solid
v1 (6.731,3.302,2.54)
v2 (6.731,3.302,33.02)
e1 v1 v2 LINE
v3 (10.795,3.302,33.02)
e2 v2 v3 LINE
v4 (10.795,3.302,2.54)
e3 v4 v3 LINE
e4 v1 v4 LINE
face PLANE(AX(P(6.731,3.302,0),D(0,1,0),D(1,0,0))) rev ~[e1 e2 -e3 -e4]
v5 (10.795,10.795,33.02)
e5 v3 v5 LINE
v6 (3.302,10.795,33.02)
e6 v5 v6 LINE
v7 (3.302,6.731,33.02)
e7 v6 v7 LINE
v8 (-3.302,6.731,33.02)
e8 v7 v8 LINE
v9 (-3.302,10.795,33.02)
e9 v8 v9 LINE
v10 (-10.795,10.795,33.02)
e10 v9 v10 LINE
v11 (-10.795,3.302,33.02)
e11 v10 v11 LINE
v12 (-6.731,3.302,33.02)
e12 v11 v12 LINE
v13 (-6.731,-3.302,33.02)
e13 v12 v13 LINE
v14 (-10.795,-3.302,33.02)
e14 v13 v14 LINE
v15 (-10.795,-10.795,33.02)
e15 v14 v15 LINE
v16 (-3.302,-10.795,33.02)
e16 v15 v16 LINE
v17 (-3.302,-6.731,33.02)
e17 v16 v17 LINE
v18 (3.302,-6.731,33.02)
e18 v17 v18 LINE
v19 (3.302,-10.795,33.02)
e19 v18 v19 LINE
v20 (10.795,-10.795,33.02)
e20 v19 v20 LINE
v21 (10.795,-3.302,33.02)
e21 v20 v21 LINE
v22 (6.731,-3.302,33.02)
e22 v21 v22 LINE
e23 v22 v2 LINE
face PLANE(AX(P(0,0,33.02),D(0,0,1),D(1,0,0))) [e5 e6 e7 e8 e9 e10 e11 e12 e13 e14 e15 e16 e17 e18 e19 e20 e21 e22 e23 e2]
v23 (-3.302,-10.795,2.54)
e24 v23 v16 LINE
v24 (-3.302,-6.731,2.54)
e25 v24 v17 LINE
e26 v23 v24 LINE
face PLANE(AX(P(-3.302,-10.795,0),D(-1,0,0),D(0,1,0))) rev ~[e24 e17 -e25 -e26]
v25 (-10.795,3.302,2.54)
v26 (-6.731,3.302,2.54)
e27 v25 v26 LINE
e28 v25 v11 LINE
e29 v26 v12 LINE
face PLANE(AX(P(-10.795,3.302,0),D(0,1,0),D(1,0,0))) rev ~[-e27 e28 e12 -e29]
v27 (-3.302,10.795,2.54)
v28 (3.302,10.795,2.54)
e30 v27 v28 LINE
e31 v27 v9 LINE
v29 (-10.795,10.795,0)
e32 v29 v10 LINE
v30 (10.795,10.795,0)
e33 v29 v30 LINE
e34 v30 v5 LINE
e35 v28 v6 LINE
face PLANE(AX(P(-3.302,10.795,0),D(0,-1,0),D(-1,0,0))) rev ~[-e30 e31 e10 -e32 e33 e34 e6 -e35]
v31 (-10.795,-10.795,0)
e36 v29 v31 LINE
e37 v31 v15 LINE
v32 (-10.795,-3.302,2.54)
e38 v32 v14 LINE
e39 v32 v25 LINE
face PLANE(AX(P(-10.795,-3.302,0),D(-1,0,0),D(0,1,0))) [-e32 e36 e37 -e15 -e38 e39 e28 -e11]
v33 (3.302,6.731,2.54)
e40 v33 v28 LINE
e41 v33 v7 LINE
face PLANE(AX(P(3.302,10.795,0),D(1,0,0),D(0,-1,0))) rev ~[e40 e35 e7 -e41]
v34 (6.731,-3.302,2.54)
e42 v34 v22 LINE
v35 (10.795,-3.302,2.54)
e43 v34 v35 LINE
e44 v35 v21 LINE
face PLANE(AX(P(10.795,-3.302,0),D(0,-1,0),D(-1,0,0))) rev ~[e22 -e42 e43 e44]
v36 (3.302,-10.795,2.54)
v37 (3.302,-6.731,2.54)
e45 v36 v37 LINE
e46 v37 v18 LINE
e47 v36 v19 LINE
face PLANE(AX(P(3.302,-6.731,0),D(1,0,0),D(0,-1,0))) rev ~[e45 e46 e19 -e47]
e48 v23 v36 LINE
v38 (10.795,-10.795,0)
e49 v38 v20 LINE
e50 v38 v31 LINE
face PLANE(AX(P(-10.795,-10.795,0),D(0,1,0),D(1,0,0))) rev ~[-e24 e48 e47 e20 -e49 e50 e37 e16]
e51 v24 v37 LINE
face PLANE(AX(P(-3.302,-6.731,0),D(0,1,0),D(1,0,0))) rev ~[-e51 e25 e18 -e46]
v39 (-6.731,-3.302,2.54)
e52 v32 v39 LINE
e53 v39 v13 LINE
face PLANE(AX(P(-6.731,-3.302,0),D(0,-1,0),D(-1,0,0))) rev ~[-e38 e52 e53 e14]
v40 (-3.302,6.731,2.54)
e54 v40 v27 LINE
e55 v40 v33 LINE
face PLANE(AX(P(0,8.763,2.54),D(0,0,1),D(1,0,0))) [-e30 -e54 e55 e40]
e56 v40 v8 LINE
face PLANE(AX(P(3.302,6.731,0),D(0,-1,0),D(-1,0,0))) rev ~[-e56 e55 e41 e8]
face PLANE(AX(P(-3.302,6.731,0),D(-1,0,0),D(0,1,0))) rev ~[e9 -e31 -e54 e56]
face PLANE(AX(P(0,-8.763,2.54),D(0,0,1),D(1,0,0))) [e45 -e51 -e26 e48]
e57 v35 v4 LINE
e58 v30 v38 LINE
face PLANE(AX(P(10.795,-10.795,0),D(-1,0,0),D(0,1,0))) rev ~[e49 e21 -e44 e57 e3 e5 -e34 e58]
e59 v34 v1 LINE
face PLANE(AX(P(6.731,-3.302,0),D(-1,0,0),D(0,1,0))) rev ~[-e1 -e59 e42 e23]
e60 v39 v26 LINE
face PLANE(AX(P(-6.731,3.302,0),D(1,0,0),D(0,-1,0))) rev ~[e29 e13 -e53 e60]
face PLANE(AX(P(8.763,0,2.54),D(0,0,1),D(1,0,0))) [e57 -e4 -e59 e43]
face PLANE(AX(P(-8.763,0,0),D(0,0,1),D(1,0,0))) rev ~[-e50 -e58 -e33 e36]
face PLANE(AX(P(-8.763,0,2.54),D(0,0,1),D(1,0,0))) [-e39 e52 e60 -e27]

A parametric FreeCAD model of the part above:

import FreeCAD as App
import Part
import Sketcher
from FreeCAD import Vector
Q = App.Units.Quantity


def add_polygon(sketch, points):
    """Adds a closed chain of lines whose ends are joined by coincident constraints."""
    first, n = sketch.GeometryCount, len(points)
    for a, b in zip(points, points[1:] + points[:1]):
        sketch.addGeometry(Part.LineSegment(App.Vector(*a, 0), App.Vector(*b, 0)), False)
    for i in range(n):
        sketch.addConstraint(Sketcher.Constraint("Coincident", first + i, 2, first + (i + 1) % n, 1))

doc = App.newDocument("Part")
body = doc.addObject("PartDesign::Body", "Body")

# Sketch on XY plane
sketch1 = body.newObject("Sketcher::SketchObject", "Sketch")
sketch1.AttachmentSupport = (doc.getObject("XY_Plane"), [""])
sketch1.MapMode = "FlatFace"
add_polygon(sketch1, [(-3.3, 10.8), (-10.8, 10.8), (-10.8, 3.3), (-6.7, 3.3), (-6.7, -3.3), (-10.8, -3.3), (-10.8, -10.8), (-3.3, -10.8), (-3.3, -6.7), (3.3, -6.7), (3.3, -10.8), (10.8, -10.8), (10.8, -3.3), (6.7, -3.3), (6.7, 3.3), (10.8, 3.3), (10.8, 10.8), (3.3, 10.8), (3.3, 6.7), (-3.3, 6.7)])  # lines 0-19
sketch1.addConstraint(Sketcher.Constraint("Horizontal", 0))
sketch1.addConstraint(Sketcher.Constraint("Vertical", 1))
sketch1.addConstraint(Sketcher.Constraint("Horizontal", 2))
sketch1.addConstraint(Sketcher.Constraint("Vertical", 3))
sketch1.addConstraint(Sketcher.Constraint("Horizontal", 4))
sketch1.addConstraint(Sketcher.Constraint("Vertical", 5))
sketch1.addConstraint(Sketcher.Constraint("Horizontal", 6))
sketch1.addConstraint(Sketcher.Constraint("Vertical", 7))
sketch1.addConstraint(Sketcher.Constraint("Horizontal", 8))
sketch1.addConstraint(Sketcher.Constraint("Vertical", 9))
sketch1.addConstraint(Sketcher.Constraint("Horizontal", 10))
sketch1.addConstraint(Sketcher.Constraint("Vertical", 11))
sketch1.addConstraint(Sketcher.Constraint("Horizontal", 12))
sketch1.addConstraint(Sketcher.Constraint("Vertical", 13))
sketch1.addConstraint(Sketcher.Constraint("Horizontal", 14))
sketch1.addConstraint(Sketcher.Constraint("Vertical", 15))
sketch1.addConstraint(Sketcher.Constraint("Horizontal", 16))
sketch1.addConstraint(Sketcher.Constraint("Vertical", 17))
sketch1.addConstraint(Sketcher.Constraint("Horizontal", 18))
sketch1.addConstraint(Sketcher.Constraint("Vertical", 19))
sketch1.addConstraint(Sketcher.Constraint("Symmetric", 0, 2, 10, 2, -1, 1))
sketch1.addConstraint(Sketcher.Constraint("Symmetric", 2, 2, 12, 2, -1, 1))
sketch1.addConstraint(Sketcher.Constraint("Symmetric", 4, 2, 14, 2, -1, 1))
sketch1.addConstraint(Sketcher.Constraint("Symmetric", 6, 2, 16, 2, -1, 1))
sketch1.addConstraint(Sketcher.Constraint("Symmetric", 8, 2, 18, 2, -1, 1))
sketch1.addConstraint(Sketcher.Constraint("Symmetric", 6, 2, 9, 2, -2))
sketch1.addConstraint(Sketcher.Constraint("Symmetric", 4, 2, 11, 2, -2))
sketch1.addConstraint(Sketcher.Constraint("Equal", 16, 1))
sketch1.addConstraint(Sketcher.Constraint("Equal", 18, 3))
sketch1.addConstraint(Sketcher.Constraint("Equal", 14, 7))
sketch1.addConstraint(Sketcher.Constraint("DistanceX", 2, 1, 2, 2, Q("0.16 in")))
sketch1.addConstraint(Sketcher.Constraint("DistanceX", 8, 1, 8, 2, Q("0.26 in")))
sketch1.addConstraint(Sketcher.Constraint("DistanceX", 0, 2, 0, 1, Q("0.295 in")))
pad1 = body.newObject("PartDesign::Pad", "Pad")
pad1.Profile = sketch1
pad1.Length = Q("1.3 in")

# Sketch on XY plane
sketch2 = body.newObject("Sketcher::SketchObject", "Sketch001")
sketch2.AttachmentSupport = (doc.getObject("XY_Plane"), [""])
sketch2.MapMode = "FlatFace"
add_polygon(sketch2, [(-10.8, 3.3), (-10.8, -3.3), (-6.7, -3.3), (-6.7, 3.3)])  # lines 0-3
add_polygon(sketch2, [(-3.3, 10.8), (-3.3, 6.7), (3.3, 6.7), (3.3, 10.8)])  # lines 4-7
add_polygon(sketch2, [(6.7, 3.3), (6.7, -3.3), (10.8, -3.3), (10.8, 3.3)])  # lines 8-11
add_polygon(sketch2, [(-3.3, -6.7), (-3.3, -10.8), (3.3, -10.8), (3.3, -6.7)])  # lines 12-15
sketch2.addConstraint(Sketcher.Constraint("Vertical", 0))
sketch2.addConstraint(Sketcher.Constraint("Horizontal", 1))
sketch2.addConstraint(Sketcher.Constraint("Vertical", 2))
sketch2.addConstraint(Sketcher.Constraint("Horizontal", 3))
sketch2.addConstraint(Sketcher.Constraint("Vertical", 4))
sketch2.addConstraint(Sketcher.Constraint("Horizontal", 5))
sketch2.addConstraint(Sketcher.Constraint("Vertical", 6))
sketch2.addConstraint(Sketcher.Constraint("Horizontal", 7))
sketch2.addConstraint(Sketcher.Constraint("Vertical", 8))
sketch2.addConstraint(Sketcher.Constraint("Horizontal", 9))
sketch2.addConstraint(Sketcher.Constraint("Vertical", 10))
sketch2.addConstraint(Sketcher.Constraint("Horizontal", 11))
sketch2.addConstraint(Sketcher.Constraint("Vertical", 12))
sketch2.addConstraint(Sketcher.Constraint("Horizontal", 13))
sketch2.addConstraint(Sketcher.Constraint("Vertical", 14))
sketch2.addConstraint(Sketcher.Constraint("Horizontal", 15))
sketch2.addConstraint(Sketcher.Constraint("Symmetric", 2, 2, 8, 2, -1, 1))
sketch2.addConstraint(Sketcher.Constraint("Symmetric", 0, 2, 10, 2, -1, 1))
sketch2.addConstraint(Sketcher.Constraint("Symmetric", 6, 2, 12, 2, -1, 1))
sketch2.addConstraint(Sketcher.Constraint("Symmetric", 4, 2, 14, 2, -1, 1))
sketch2.addConstraint(Sketcher.Constraint("Horizontal", 1, 2, 8, 2))
sketch2.addConstraint(Sketcher.Constraint("Vertical", 7, 2, 12, 2))
sketch2.addConstraint(Sketcher.Constraint("Equal", 15, 0))
sketch2.addConstraint(Sketcher.Constraint("Equal", 11, 4))
sketch2.addConstraint(Sketcher.Constraint("DistanceX", 1, 1, 1, 2, Q("0.16 in")))
sketch2.addConstraint(Sketcher.Constraint("DistanceX", 5, 1, 5, 2, Q("0.26 in")))
sketch2.addConstraint(Sketcher.Constraint("DistanceX", 1, 2, 8, 2, Q("0.53 in")))
sketch2.addConstraint(Sketcher.Constraint("DistanceY", -1, 1, 4, 2, Q("0.265 in")))
pad2 = body.newObject("PartDesign::Pad", "Pad001")
pad2.Profile = sketch2
pad2.Length = Q("0.1 in")

doc.recompute()
